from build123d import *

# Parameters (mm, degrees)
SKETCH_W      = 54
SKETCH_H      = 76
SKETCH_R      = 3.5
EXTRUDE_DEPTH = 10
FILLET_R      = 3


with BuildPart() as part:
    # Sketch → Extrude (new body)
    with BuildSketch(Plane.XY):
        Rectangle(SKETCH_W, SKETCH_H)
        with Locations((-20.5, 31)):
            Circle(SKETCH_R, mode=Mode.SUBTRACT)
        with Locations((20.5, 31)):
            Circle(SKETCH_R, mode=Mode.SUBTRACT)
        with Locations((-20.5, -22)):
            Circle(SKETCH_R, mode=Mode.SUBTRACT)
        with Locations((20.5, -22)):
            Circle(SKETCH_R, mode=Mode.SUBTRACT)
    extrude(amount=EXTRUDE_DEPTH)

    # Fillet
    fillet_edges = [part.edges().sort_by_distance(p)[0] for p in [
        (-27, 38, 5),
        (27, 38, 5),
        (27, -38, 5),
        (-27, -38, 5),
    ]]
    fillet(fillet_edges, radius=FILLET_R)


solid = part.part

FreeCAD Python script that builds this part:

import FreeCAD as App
import Part
import Sketcher
from FreeCAD import Vector
Q = App.Units.Quantity


def edges_at(feature, points):
    """Names of the edges that pass closest to the given points."""
    edges = feature.Shape.Edges
    near = lambda p: min(range(len(edges)), key=lambda i: edges[i].distToShape(Part.Vertex(*p))[0])
    return sorted({f"Edge{near(p) + 1}" for p in points})


def add_polygon(sketch, points):
    """Adds a closed chain of lines whose ends are joined by coincident constraints."""
    first, n = sketch.GeometryCount, len(points)
    for a, b in zip(points, points[1:] + points[:1]):
        sketch.addGeometry(Part.LineSegment(App.Vector(*a, 0), App.Vector(*b, 0)), False)
    for i in range(n):
        sketch.addConstraint(Sketcher.Constraint("Coincident", first + i, 2, first + (i + 1) % n, 1))

doc = App.newDocument("Part")
params = doc.addObject("Spreadsheet::Sheet", "Params")
for row, (alias, value) in enumerate([
    ("sketch1_diameter", "7 mm"),
    ("sketch1_width", "54 mm"),
    ("sketch1_height", "76 mm"),
    ("pad1_length", "10 mm"),
    ("fillet_radius", "3 mm"),
], start=1):
    params.set(f"A{row}", alias)
    params.set(f"B{row}", "=" + value)
    params.setAlias(f"B{row}", alias)

body = doc.addObject("PartDesign::Body", "Body")

sketch1 = body.newObject("Sketcher::SketchObject", "Sketch")
sketch1.AttachmentSupport = (doc.getObject("XY_Plane"), [""])
sketch1.MapMode = "FlatFace"
add_polygon(sketch1, [(-27, 38), (-27, -38), (27, -38), (27, 38)])
sketch1.addGeometry(Part.Circle(Vector(-20.5, -22, 0), Vector(0, 0, 1), 3.5), False)
sketch1.addGeometry(Part.Circle(Vector(20.5, -22, 0), Vector(0, 0, 1), 3.5), False)
sketch1.addGeometry(Part.Circle(Vector(-20.5, 31, 0), Vector(0, 0, 1), 3.5), False)
sketch1.addGeometry(Part.Circle(Vector(20.5, 31, 0), Vector(0, 0, 1), 3.5), False)
sketch1.addConstraint(Sketcher.Constraint("Vertical", 0))
sketch1.addConstraint(Sketcher.Constraint("Horizontal", 1))
sketch1.addConstraint(Sketcher.Constraint("Vertical", 2))
sketch1.addConstraint(Sketcher.Constraint("Horizontal", 3))
sketch1.addConstraint(Sketcher.Constraint("Equal", 4, 5))
sketch1.addConstraint(Sketcher.Constraint("Equal", 5, 6))
sketch1.addConstraint(Sketcher.Constraint("Equal", 6, 7))
sketch1.addConstraint(Sketcher.Constraint("Symmetric", 0, 2, 2, 2, -1, 1))
sketch1.addConstraint(Sketcher.Constraint("Symmetric", 4, 3, 5, 3, -2))
sketch1.addConstraint(Sketcher.Constraint("Symmetric", 6, 3, 7, 3, -2))
sketch1.addConstraint(Sketcher.Constraint("Vertical", 4, 3, 6, 3))
sketch1.addConstraint(Sketcher.Constraint("Diameter", 4, Q("7 mm")))
sketch1.addConstraint(Sketcher.Constraint("DistanceX", 1, 1, 1, 2, Q("54 mm")))
sketch1.addConstraint(Sketcher.Constraint("DistanceY", 0, 2, 0, 1, Q("76 mm")))
sketch1.addConstraint(Sketcher.Constraint("DistanceY", 4, 3, -1, 1, Q("22 mm")))
sketch1.addConstraint(Sketcher.Constraint("DistanceY", -1, 1, 6, 3, Q("31 mm")))
sketch1.addConstraint(Sketcher.Constraint("DistanceX", 4, 3, 5, 3, Q("41 mm")))
sketch1.setExpression("Constraints[15]", "Params.sketch1_diameter")
sketch1.setExpression("Constraints[16]", "Params.sketch1_width")
sketch1.setExpression("Constraints[17]", "Params.sketch1_height")
pad1 = body.newObject("PartDesign::Pad", "Pad")
pad1.Profile = sketch1
pad1.setExpression("Length", "Params.pad1_length")
doc.recompute()

fillet = body.newObject("PartDesign::Fillet", "Fillet")
fillet.Base = (pad1, edges_at(pad1, [
    (-27, 38, 5),
    (27, 38, 5),
    (27, -38, 5),
    (-27, -38, 5),
]))
fillet.setExpression("Radius", "Params.fillet_radius")

doc.recompute()
